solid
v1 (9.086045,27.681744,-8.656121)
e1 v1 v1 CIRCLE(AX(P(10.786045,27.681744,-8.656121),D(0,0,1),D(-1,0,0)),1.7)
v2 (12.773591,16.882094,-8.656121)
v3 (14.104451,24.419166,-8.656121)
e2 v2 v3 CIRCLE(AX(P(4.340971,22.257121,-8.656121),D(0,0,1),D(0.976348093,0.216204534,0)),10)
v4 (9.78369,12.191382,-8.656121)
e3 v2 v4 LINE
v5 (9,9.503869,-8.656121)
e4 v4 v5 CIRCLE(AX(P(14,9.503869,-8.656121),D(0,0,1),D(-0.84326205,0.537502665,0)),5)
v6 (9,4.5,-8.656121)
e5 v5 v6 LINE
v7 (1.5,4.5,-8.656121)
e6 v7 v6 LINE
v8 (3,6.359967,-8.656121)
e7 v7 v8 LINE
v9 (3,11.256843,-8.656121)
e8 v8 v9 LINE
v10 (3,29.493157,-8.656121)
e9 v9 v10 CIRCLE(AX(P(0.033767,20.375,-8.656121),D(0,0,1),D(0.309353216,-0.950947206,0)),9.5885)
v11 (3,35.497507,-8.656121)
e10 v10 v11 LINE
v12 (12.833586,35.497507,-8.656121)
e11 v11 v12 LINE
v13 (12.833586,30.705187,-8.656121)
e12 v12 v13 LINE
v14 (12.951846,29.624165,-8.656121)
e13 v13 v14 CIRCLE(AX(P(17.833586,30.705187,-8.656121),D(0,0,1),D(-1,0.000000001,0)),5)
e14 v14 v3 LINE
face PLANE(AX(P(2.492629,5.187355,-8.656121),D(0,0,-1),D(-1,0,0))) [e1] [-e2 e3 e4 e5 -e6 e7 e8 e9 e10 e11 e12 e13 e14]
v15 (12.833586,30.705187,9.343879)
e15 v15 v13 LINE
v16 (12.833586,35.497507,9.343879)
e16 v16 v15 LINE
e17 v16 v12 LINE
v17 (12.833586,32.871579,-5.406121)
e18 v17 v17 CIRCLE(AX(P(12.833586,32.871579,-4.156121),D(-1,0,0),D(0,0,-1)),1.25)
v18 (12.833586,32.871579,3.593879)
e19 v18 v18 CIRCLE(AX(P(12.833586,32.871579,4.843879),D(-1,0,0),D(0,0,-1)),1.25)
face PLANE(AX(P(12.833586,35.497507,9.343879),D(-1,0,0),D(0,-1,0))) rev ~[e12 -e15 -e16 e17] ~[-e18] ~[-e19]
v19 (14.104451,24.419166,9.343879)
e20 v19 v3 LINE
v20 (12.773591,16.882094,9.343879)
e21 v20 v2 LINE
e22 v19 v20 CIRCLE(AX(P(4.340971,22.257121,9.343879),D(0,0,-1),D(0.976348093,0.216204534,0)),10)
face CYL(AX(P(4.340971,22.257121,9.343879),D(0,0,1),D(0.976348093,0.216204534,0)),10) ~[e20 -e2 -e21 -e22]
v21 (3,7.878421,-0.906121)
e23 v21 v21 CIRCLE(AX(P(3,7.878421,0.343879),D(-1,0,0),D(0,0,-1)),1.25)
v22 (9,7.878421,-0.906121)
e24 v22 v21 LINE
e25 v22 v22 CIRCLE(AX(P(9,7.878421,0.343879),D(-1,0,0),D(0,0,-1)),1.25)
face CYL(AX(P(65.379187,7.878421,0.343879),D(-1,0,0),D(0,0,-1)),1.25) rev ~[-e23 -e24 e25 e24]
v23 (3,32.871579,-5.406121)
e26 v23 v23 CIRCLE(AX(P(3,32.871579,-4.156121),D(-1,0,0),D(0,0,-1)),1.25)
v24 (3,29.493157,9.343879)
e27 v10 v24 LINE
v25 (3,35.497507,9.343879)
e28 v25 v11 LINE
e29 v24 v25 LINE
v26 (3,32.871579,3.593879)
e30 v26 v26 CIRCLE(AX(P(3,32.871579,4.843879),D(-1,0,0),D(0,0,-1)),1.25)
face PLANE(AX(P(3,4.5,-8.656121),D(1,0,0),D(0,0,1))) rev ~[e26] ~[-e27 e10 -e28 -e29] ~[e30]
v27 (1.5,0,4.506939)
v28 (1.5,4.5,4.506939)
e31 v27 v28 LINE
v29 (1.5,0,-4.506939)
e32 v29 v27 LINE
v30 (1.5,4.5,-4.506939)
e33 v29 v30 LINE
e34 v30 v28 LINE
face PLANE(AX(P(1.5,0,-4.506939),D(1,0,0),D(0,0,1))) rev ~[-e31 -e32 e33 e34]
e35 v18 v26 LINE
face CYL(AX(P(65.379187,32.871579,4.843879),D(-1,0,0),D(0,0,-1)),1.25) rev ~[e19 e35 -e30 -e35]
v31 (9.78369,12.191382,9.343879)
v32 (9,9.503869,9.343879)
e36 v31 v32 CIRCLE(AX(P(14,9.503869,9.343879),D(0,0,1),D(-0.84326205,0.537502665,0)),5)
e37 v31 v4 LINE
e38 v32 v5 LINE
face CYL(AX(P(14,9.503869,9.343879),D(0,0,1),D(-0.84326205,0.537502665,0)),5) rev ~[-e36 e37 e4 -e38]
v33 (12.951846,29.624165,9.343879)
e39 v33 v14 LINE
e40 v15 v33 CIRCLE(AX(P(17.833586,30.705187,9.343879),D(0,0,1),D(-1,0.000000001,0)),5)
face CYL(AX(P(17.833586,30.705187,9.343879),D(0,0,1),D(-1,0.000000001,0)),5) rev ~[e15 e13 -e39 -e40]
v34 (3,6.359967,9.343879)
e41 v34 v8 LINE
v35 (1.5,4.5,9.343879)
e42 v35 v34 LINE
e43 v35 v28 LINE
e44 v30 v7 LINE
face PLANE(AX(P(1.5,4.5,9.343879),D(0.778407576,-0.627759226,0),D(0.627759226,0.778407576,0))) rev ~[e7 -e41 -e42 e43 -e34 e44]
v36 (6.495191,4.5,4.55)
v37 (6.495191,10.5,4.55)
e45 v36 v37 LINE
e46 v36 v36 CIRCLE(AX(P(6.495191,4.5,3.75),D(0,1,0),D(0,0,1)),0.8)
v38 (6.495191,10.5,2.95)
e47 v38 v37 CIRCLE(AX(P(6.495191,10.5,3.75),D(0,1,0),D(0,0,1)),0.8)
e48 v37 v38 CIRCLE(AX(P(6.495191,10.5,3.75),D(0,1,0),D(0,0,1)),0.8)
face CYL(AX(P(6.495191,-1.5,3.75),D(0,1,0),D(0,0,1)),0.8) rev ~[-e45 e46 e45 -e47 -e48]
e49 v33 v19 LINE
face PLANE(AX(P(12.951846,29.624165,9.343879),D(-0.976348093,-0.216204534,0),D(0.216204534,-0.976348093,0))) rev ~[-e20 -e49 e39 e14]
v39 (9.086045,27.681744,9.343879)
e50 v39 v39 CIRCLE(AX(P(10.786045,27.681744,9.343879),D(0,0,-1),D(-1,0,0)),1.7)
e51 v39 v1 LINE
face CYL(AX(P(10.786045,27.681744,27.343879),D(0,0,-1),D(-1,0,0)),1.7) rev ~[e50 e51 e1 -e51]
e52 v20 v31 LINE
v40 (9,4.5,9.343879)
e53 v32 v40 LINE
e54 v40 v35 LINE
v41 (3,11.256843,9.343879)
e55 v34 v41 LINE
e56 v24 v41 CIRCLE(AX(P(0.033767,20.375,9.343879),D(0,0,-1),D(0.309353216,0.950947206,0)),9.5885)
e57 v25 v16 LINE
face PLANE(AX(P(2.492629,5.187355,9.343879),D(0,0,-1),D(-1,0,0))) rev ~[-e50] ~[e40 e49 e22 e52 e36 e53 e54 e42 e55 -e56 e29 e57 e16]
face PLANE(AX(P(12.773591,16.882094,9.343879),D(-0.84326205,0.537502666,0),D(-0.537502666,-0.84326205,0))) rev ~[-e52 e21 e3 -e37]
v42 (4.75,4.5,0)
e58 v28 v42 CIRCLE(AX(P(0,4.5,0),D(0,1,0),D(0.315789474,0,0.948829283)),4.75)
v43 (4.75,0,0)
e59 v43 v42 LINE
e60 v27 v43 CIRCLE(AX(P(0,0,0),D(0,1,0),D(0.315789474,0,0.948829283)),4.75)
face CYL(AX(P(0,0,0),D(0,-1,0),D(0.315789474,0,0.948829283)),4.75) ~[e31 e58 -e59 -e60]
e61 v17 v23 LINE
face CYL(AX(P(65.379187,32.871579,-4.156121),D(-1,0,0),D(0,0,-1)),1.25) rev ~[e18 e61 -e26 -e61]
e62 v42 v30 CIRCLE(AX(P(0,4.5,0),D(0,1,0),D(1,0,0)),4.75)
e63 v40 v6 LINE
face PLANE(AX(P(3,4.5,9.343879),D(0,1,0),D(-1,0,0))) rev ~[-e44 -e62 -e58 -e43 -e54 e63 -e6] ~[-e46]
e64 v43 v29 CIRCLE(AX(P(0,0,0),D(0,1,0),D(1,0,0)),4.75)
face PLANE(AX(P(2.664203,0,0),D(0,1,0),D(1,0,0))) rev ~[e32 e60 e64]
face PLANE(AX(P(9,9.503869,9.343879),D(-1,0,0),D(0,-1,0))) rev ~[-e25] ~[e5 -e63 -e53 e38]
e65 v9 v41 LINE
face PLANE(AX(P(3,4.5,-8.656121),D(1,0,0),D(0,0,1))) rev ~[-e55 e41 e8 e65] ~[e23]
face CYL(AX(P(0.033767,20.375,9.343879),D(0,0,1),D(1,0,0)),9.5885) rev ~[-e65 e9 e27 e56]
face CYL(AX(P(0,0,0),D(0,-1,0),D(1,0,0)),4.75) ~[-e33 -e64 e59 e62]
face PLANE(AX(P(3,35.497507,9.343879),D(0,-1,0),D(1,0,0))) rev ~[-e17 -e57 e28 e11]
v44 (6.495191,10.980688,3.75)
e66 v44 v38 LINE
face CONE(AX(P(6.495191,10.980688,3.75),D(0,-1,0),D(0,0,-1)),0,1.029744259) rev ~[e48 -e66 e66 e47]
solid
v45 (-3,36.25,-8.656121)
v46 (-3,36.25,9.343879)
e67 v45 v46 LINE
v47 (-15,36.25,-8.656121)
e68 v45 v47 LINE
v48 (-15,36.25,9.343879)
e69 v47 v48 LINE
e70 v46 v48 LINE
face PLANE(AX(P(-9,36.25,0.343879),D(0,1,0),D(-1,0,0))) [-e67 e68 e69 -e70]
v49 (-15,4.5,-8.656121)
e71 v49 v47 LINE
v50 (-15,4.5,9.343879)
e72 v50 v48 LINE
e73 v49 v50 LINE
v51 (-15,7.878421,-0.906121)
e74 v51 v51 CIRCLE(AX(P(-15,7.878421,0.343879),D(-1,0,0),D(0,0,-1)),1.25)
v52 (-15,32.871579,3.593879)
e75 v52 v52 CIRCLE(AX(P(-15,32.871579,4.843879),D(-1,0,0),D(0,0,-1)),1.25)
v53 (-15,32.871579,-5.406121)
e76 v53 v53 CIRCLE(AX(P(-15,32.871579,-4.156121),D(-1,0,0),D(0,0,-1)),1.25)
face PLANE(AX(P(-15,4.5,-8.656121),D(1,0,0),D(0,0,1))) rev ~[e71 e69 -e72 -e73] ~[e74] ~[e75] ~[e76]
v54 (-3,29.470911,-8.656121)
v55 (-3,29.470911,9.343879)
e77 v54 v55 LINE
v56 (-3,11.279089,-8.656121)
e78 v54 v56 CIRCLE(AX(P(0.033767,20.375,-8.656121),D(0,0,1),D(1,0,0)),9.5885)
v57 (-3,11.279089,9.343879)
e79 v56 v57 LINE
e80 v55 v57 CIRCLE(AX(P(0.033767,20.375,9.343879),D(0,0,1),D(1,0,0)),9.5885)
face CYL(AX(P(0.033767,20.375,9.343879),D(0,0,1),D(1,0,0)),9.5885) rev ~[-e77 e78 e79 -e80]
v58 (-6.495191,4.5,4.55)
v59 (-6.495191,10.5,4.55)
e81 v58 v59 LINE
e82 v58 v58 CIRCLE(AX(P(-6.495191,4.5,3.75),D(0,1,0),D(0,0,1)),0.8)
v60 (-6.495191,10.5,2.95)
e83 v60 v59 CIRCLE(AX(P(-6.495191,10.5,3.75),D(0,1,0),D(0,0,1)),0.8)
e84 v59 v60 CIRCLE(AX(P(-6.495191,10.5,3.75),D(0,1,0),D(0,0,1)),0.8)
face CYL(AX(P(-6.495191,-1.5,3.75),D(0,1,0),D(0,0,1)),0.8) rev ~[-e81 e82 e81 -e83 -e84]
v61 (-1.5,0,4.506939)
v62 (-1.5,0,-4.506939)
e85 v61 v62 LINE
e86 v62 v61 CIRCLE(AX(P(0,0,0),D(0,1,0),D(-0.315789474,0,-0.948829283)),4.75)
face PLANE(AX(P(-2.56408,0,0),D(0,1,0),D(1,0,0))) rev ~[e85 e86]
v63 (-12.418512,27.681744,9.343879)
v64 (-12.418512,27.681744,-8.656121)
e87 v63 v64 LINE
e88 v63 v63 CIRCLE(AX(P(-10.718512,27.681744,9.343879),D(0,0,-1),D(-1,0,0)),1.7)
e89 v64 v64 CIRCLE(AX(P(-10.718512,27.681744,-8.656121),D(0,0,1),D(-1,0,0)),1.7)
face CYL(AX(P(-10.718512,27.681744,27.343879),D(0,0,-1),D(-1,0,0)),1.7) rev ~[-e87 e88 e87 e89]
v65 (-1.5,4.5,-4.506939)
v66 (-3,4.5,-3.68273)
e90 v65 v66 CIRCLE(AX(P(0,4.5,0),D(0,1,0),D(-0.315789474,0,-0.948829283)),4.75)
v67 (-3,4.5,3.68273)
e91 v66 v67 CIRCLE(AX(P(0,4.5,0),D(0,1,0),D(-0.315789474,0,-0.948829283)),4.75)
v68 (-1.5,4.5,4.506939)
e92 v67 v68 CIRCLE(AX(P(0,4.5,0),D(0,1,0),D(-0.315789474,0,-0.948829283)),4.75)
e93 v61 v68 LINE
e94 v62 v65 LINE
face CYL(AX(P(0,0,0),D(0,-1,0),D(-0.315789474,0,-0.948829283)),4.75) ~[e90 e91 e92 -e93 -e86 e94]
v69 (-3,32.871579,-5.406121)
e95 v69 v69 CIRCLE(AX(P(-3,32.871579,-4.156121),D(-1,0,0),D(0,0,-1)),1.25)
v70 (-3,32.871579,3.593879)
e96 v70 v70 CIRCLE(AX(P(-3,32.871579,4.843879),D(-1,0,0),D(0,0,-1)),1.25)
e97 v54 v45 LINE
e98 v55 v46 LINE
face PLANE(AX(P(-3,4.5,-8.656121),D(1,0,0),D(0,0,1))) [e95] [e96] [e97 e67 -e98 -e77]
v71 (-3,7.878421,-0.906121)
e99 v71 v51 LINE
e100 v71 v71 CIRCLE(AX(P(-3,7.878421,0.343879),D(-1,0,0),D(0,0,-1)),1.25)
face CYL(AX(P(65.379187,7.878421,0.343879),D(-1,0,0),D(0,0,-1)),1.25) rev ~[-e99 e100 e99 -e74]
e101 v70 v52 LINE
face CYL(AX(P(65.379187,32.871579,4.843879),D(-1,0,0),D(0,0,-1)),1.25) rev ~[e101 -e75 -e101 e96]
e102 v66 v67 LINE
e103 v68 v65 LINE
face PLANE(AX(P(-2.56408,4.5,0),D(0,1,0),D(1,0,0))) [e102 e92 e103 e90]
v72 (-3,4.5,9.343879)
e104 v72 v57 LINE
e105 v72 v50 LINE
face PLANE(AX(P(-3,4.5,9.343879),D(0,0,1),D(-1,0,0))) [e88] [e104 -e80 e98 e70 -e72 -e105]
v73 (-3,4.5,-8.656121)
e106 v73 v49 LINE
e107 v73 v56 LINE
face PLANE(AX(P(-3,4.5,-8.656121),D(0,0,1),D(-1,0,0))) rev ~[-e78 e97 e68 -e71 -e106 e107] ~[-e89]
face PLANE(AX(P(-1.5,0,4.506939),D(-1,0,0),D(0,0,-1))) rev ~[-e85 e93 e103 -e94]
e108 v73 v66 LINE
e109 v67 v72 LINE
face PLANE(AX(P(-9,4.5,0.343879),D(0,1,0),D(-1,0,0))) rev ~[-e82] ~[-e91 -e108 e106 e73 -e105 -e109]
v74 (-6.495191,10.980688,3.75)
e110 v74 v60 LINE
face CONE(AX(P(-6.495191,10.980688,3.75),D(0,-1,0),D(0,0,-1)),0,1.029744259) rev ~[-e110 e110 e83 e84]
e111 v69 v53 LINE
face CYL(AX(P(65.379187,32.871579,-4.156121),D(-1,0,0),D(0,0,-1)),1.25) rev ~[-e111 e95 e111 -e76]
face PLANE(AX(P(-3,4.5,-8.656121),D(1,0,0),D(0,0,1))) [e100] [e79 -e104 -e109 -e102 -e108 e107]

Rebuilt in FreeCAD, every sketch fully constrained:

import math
import FreeCAD as App
import Part
import Sketcher

V = App.Vector


def add_polygon(sketch, points):
    """Adds a closed chain of lines whose ends are joined by coincident constraints."""
    first, n = sketch.GeometryCount, len(points)
    for a, b in zip(points, points[1:] + points[:1]):
        sketch.addGeometry(Part.LineSegment(App.Vector(*a, 0), App.Vector(*b, 0)), False)
    for i in range(n):
        sketch.addConstraint(Sketcher.Constraint("Coincident", first + i, 2, first + (i + 1) % n, 1))

doc = App.newDocument("Part")
body = doc.addObject("PartDesign::Body", "Body")

# Sketch on XZ plane
sketch1 = body.newObject("Sketcher::SketchObject", "Sketch")
sketch1.AttachmentSupport = (doc.getObject("XZ_Plane"), [""])
sketch1.MapMode = "FlatFace"
sketch1.AttachmentOffset = App.Placement(V(0, 0, -4.5), App.Rotation())
add_polygon(sketch1, [(-3, 9.343879), (-3, -8.656121), (-15, -8.656121), (-15, 9.343879)])  # lines 0-3
sketch1.addConstraint([
    Sketcher.Constraint("Vertical", 0),
    Sketcher.Constraint("Horizontal", 1),
    Sketcher.Constraint("Vertical", 2),
    Sketcher.Constraint("Horizontal", 3),
    Sketcher.Constraint("DistanceX", 1, 2, 1, 1, 12.0),
    Sketcher.Constraint("DistanceY", 0, 2, 0, 1, 18.0),
    Sketcher.Constraint("DistanceX", 0, 2, -1, 1, 3.0),
    Sketcher.Constraint("DistanceY", 0, 2, -1, 1, 8.656121),
])
pad1 = body.newObject("PartDesign::Pad", "Pad")
pad1.Profile = sketch1
pad1.Length = 31.75
pad1.Reversed = True
body2 = doc.addObject("PartDesign::Body", "Body001")

# Sketch on XZ plane
sketch2 = body2.newObject("Sketcher::SketchObject", "Sketch001")
sketch2.AttachmentSupport = (doc.getObject("XZ_Plane001"), [""])
sketch2.MapMode = "FlatFace"
sketch2.AttachmentOffset = App.Placement(V(0, 0, -4.5), App.Rotation())
add_polygon(sketch2, [(15, 9.343879), (15, -8.656121), (3, -8.656121), (3, 9.343879)])  # lines 0-3
sketch2.addConstraint([
    Sketcher.Constraint("Vertical", 0),
    Sketcher.Constraint("Horizontal", 1),
    Sketcher.Constraint("Vertical", 2),
    Sketcher.Constraint("Horizontal", 3),
    Sketcher.Constraint("DistanceX", 1, 2, 1, 1, 12.0),
    Sketcher.Constraint("DistanceY", 0, 2, 0, 1, 18.0),
    Sketcher.Constraint("DistanceX", -1, 1, 0, 2, 15.0),
    Sketcher.Constraint("DistanceY", 0, 2, -1, 1, 8.656121),
])
pad2 = body2.newObject("PartDesign::Pad", "Pad001")
pad2.Profile = sketch2
pad2.Length = 31.75
pad2.Reversed = True
body.AllowCompound = True
doc.recompute()

boolean = body.newObject("PartDesign::Boolean", "Boolean")
boolean.Type = "Fuse"
boolean.addObjects([body2])

# Sketch on XZ plane
sketch3 = body.newObject("Sketcher::SketchObject", "Sketch002")
sketch3.AttachmentSupport = (doc.getObject("XZ_Plane"), [""])
sketch3.MapMode = "FlatFace"
sketch3.addGeometry([
    Part.ArcOfCircle(Part.Circle(V(0, 0, 0), V(0, 0, 1), 4.75), math.radians(-71.59152), math.radians(0)),  # 0
    Part.LineSegment(V(1.5, -4.506939, 0), V(1.5, 4.506939, 0)),  # 1
    Part.ArcOfCircle(Part.Circle(V(0, 0, 0), V(0, 0, 1), 4.75), math.radians(0), math.radians(71.59152)),  # 2
    Part.LineSegment(V(-1.5, 4.506939, 0), V(-1.5, -4.506939, 0)),  # 3
    Part.ArcOfCircle(Part.Circle(V(0, 0, 0), V(0, 0, 1), 4.75), math.radians(108.40848), math.radians(251.59152)),  # 4
], False)
sketch3.addConstraint([
    Sketcher.Constraint("Coincident", 0, 1, 1, 1),
    Sketcher.Constraint("Coincident", 1, 2, 2, 2),
    Sketcher.Constraint("Tangent", 2, 1, 0, 2),
    Sketcher.Constraint("Coincident", 3, 1, 4, 1),
    Sketcher.Constraint("Coincident", 4, 2, 3, 2),
    Sketcher.Constraint("Vertical", 1),
    Sketcher.Constraint("Vertical", 3),
    Sketcher.Constraint("Coincident", 0, 3, -1, 1),
    Sketcher.Constraint("Coincident", 4, 3, -1, 1),
    Sketcher.Constraint("Equal", 0, 2),
    Sketcher.Constraint("Equal", 2, 4),
    Sketcher.Constraint("PointOnObject", 2, 1, -1),
    Sketcher.Constraint("Horizontal", 1, 2, 3, 1),
    Sketcher.Constraint("Radius", 0, 4.75),
    Sketcher.Constraint("DistanceX", 3, 1, 1, 2, 3.0),
])
pad3 = body.newObject("PartDesign::Pad", "Pad002")
pad3.Profile = sketch3
pad3.Length = 4.5
pad3.Reversed = True

# Sketch on XY plane
sketch4 = body.newObject("Sketcher::SketchObject", "Sketch003")
sketch4.AttachmentSupport = (doc.getObject("XY_Plane"), [""])
sketch4.MapMode = "FlatFace"
sketch4.AttachmentOffset = App.Placement(V(0, 0, 9.343879), App.Rotation())
sketch4.addGeometry(Part.Circle(V(0.033767, 20.375, 0), V(0, 0, 1), 9.5885), False)
sketch4.addConstraint([
    Sketcher.Constraint("Diameter", 0, 19.177),
    Sketcher.Constraint("DistanceY", -1, 1, 0, 3, 20.375),
    Sketcher.Constraint("DistanceX", -1, 1, 0, 3, 0.033767),
])
pocket1 = body.newObject("PartDesign::Pocket", "Pocket")
pocket1.Profile = sketch4
pocket1.Type = "ThroughAll"

# Sketch on YZ plane
sketch5 = body.newObject("Sketcher::SketchObject", "Sketch004")
sketch5.AttachmentSupport = (doc.getObject("YZ_Plane"), [""])
sketch5.MapMode = "FlatFace"
sketch5.AttachmentOffset = App.Placement(V(0, 0, 15), App.Rotation())
sketch5.addGeometry([
    Part.Circle(V(32.871579, 4.843879, 0), V(0, 0, 1), 1.25),
    Part.Circle(V(32.871579, -4.156121, 0), V(0, 0, 1), 1.25),
    Part.Circle(V(7.878421, 0.343879, 0), V(0, 0, 1), 1.25),
], False)
sketch5.addConstraint([
    Sketcher.Constraint("Equal", 0, 1),
    Sketcher.Constraint("Equal", 1, 2),
    Sketcher.Constraint("Vertical", 0, 3, 1, 3),
    Sketcher.Constraint("Diameter", 0, 2.5),
    Sketcher.Constraint("DistanceY", 1, 3, 0, 3, 9.0),
    Sketcher.Constraint("DistanceY", 2, 3, 0, 3, 4.5),
    Sketcher.Constraint("DistanceX", -1, 1, 0, 3, 32.871579),
    Sketcher.Constraint("DistanceY", -1, 1, 0, 3, 4.843879),
    Sketcher.Constraint("DistanceX", -1, 1, 2, 3, 7.878421),
])
doc.recompute()
hole = body.newObject("PartDesign::Hole", "Hole")
hole.Profile = sketch5
hole.ThreadType = "None"
hole.Diameter = 2.5
hole.DepthType = "ThroughAll"

# Sketch on XZ plane
sketch6 = body.newObject("Sketcher::SketchObject", "Sketch005")
sketch6.AttachmentSupport = (doc.getObject("XZ_Plane"), [""])
sketch6.MapMode = "FlatFace"
sketch6.AttachmentOffset = App.Placement(V(0, 0, -4.5), App.Rotation())
sketch6.addGeometry([
    Part.Circle(V(-6.495191, 3.75, 0), V(0, 0, 1), 0.8),
    Part.Circle(V(6.495191, 3.75, 0), V(0, 0, 1), 0.8),
], False)
sketch6.addConstraint([
    Sketcher.Constraint("Equal", 0, 1),
    Sketcher.Constraint("Symmetric", 0, 3, 1, 3, -2),
    Sketcher.Constraint("Diameter", 0, 1.6),
    Sketcher.Constraint("DistanceY", -1, 1, 0, 3, 3.75),
    Sketcher.Constraint("DistanceX", 0, 3, -1, 1, 6.495191),
])
doc.recompute()
hole2 = body.newObject("PartDesign::Hole", "Hole001")
hole2.Profile = sketch6
hole2.ThreadType = "None"
hole2.Diameter = 1.6
hole2.DepthType = "Dimension"
hole2.Depth = 6
hole2.DrillPoint = "Angled"
hole2.DrillPointAngle = 118

# Sketch on XY plane
sketch7 = body.newObject("Sketcher::SketchObject", "Sketch006")
sketch7.AttachmentSupport = (doc.getObject("XY_Plane"), [""])
sketch7.MapMode = "FlatFace"
sketch7.AttachmentOffset = App.Placement(V(0, 0, 9.343879), App.Rotation())
sketch7.addGeometry([
    Part.Circle(V(-10.718512, 27.681744, 0), V(0, 0, 1), 1.7),
    Part.Circle(V(10.786045, 27.681744, 0), V(0, 0, 1), 1.7),
], False)
sketch7.addConstraint([
    Sketcher.Constraint("Equal", 0, 1),
    Sketcher.Constraint("Horizontal", 0, 3, 1, 3),
    Sketcher.Constraint("Diameter", 0, 3.4),
    Sketcher.Constraint("DistanceX", 0, 3, -1, 1, 10.718512),
    Sketcher.Constraint("DistanceY", -1, 1, 0, 3, 27.681744),
    Sketcher.Constraint("DistanceX", -1, 1, 1, 3, 10.786045),
])
doc.recompute()
hole3 = body.newObject("PartDesign::Hole", "Hole002")
hole3.Profile = sketch7
hole3.ThreadType = "None"
hole3.Diameter = 3.4
hole3.DepthType = "Dimension"
hole3.Depth = 18
hole3.DrillPoint = "Angled"
hole3.DrillPointAngle = 118

# Sketch on XY plane
sketch8 = body.newObject("Sketcher::SketchObject", "Sketch007")
sketch8.AttachmentSupport = (doc.getObject("XY_Plane"), [""])
sketch8.MapMode = "FlatFace"
sketch8.AttachmentOffset = App.Placement(V(0, 0, 9.343879), App.Rotation())
sketch8.addGeometry([
    Part.LineSegment(V(9, 9.503869, 0), V(9, 4.5, 0)),  # 0
    Part.LineSegment(V(9, 4.5, 0), V(15, 4.5, 0)),  # 1
    Part.LineSegment(V(15, 4.5, 0), V(15, 36.25, 0)),  # 2
    Part.LineSegment(V(15, 36.25, 0), V(3, 36.25, 0)),  # 3
    Part.LineSegment(V(3, 36.25, 0), V(3, 35.497507, 0)),  # 4
    Part.LineSegment(V(3, 35.497507, 0), V(12.833586, 35.497507, 0)),  # 5
    Part.LineSegment(V(12.833586, 35.497507, 0), V(12.833586, 30.705187, 0)),  # 6
    Part.ArcOfCircle(Part.Circle(V(17.833586, 30.705187, 0), V(0, 0, 1), 5), math.radians(180), math.radians(192.486204)),  # 7
    Part.LineSegment(V(12.951846, 29.624165, 0), V(14.104451, 24.419166, 0)),  # 8
    Part.ArcOfCircle(Part.Circle(V(4.340971, 22.257121, 0), V(0, 0, 1), 10), math.radians(-32.513796), math.radians(12.486204)),  # 9
    Part.LineSegment(V(12.773591, 16.882094, 0), V(9.78369, 12.191382, 0)),  # 10
    Part.ArcOfCircle(Part.Circle(V(14, 9.503869, 0), V(0, 0, 1), 5), math.radians(147.486204), math.radians(180)),  # 11
], False)
sketch8.addConstraint([
    Sketcher.Constraint("Coincident", 0, 2, 1, 1),
    Sketcher.Constraint("Coincident", 1, 2, 2, 1),
    Sketcher.Constraint("Coincident", 2, 2, 3, 1),
    Sketcher.Constraint("Coincident", 3, 2, 4, 1),
    Sketcher.Constraint("Coincident", 4, 2, 5, 1),
    Sketcher.Constraint("Coincident", 5, 2, 6, 1),
    Sketcher.Constraint("Tangent", 6, 2, 7, 1),
    Sketcher.Constraint("Tangent", 7, 2, 8, 1),
    Sketcher.Constraint("Tangent", 8, 2, 9, 2),
    Sketcher.Constraint("Tangent", 9, 1, 10, 1),
    Sketcher.Constraint("Tangent", 10, 2, 11, 1),
    Sketcher.Constraint("Tangent", 11, 2, 0, 1),
    Sketcher.Constraint("Vertical", 0),
    Sketcher.Constraint("Horizontal", 1),
    Sketcher.Constraint("Vertical", 2),
    Sketcher.Constraint("Horizontal", 3),
    Sketcher.Constraint("Vertical", 4),
    Sketcher.Constraint("Horizontal", 5),
    Sketcher.Constraint("Vertical", 6),
    Sketcher.Constraint("Equal", 7, 11),
    Sketcher.Constraint("Radius", 7, 5.0),
    Sketcher.Constraint("Radius", 9, 10.0),
    Sketcher.Constraint("DistanceX", 1, 1, 1, 2, 6.0),
    Sketcher.Constraint("DistanceX", 3, 2, 3, 1, 12.0),
    Sketcher.Constraint("DistanceX", -1, 1, 11, 3, 14.0),
    Sketcher.Constraint("DistanceY", 2, 1, 2, 2, 31.75),
    Sketcher.Constraint("DistanceY", -1, 1, 0, 2, 4.5),
    Sketcher.Constraint("DistanceY", 8, 2, 7, 2, 5.204998),
    Sketcher.Constraint("DistanceY", 0, 2, 0, 1, 5.003869),
    Sketcher.Constraint("DistanceY", 6, 2, 6, 1, 4.792319),
    Sketcher.Constraint("DistanceX", 10, 2, 9, 1, 2.989901),
    Sketcher.Constraint("Distance", 8, 5.331089),
    Sketcher.Constraint("Distance", 10, 5.56258),
])
pocket2 = body.newObject("PartDesign::Pocket", "Pocket001")
pocket2.Profile = sketch8
pocket2.Type = "ThroughAll"

# Sketch on XY plane
sketch9 = body.newObject("Sketcher::SketchObject", "Sketch008")
sketch9.AttachmentSupport = (doc.getObject("XY_Plane"), [""])
sketch9.MapMode = "FlatFace"
sketch9.AttachmentOffset = App.Placement(V(0, 0, 9.343879), App.Rotation())
add_polygon(sketch9, [(3, 6.359967), (1.5, 4.5), (3, 4.5)])  # lines 0-2
sketch9.addConstraint([
    Sketcher.Constraint("Horizontal", 1),
    Sketcher.Constraint("Vertical", 2),
    Sketcher.Constraint("DistanceX", 1, 1, 1, 2, 1.5),
    Sketcher.Constraint("DistanceX", -1, 1, 1, 2, 3.0),
    Sketcher.Constraint("DistanceY", -1, 1, 0, 2, 4.5),
    Sketcher.Constraint("Distance", 0, 2.389451),
])
pad4 = body.newObject("PartDesign::Pad", "Pad003")
pad4.Profile = sketch9
pad4.Length = 18
pad4.Reversed = True

doc.recompute()
